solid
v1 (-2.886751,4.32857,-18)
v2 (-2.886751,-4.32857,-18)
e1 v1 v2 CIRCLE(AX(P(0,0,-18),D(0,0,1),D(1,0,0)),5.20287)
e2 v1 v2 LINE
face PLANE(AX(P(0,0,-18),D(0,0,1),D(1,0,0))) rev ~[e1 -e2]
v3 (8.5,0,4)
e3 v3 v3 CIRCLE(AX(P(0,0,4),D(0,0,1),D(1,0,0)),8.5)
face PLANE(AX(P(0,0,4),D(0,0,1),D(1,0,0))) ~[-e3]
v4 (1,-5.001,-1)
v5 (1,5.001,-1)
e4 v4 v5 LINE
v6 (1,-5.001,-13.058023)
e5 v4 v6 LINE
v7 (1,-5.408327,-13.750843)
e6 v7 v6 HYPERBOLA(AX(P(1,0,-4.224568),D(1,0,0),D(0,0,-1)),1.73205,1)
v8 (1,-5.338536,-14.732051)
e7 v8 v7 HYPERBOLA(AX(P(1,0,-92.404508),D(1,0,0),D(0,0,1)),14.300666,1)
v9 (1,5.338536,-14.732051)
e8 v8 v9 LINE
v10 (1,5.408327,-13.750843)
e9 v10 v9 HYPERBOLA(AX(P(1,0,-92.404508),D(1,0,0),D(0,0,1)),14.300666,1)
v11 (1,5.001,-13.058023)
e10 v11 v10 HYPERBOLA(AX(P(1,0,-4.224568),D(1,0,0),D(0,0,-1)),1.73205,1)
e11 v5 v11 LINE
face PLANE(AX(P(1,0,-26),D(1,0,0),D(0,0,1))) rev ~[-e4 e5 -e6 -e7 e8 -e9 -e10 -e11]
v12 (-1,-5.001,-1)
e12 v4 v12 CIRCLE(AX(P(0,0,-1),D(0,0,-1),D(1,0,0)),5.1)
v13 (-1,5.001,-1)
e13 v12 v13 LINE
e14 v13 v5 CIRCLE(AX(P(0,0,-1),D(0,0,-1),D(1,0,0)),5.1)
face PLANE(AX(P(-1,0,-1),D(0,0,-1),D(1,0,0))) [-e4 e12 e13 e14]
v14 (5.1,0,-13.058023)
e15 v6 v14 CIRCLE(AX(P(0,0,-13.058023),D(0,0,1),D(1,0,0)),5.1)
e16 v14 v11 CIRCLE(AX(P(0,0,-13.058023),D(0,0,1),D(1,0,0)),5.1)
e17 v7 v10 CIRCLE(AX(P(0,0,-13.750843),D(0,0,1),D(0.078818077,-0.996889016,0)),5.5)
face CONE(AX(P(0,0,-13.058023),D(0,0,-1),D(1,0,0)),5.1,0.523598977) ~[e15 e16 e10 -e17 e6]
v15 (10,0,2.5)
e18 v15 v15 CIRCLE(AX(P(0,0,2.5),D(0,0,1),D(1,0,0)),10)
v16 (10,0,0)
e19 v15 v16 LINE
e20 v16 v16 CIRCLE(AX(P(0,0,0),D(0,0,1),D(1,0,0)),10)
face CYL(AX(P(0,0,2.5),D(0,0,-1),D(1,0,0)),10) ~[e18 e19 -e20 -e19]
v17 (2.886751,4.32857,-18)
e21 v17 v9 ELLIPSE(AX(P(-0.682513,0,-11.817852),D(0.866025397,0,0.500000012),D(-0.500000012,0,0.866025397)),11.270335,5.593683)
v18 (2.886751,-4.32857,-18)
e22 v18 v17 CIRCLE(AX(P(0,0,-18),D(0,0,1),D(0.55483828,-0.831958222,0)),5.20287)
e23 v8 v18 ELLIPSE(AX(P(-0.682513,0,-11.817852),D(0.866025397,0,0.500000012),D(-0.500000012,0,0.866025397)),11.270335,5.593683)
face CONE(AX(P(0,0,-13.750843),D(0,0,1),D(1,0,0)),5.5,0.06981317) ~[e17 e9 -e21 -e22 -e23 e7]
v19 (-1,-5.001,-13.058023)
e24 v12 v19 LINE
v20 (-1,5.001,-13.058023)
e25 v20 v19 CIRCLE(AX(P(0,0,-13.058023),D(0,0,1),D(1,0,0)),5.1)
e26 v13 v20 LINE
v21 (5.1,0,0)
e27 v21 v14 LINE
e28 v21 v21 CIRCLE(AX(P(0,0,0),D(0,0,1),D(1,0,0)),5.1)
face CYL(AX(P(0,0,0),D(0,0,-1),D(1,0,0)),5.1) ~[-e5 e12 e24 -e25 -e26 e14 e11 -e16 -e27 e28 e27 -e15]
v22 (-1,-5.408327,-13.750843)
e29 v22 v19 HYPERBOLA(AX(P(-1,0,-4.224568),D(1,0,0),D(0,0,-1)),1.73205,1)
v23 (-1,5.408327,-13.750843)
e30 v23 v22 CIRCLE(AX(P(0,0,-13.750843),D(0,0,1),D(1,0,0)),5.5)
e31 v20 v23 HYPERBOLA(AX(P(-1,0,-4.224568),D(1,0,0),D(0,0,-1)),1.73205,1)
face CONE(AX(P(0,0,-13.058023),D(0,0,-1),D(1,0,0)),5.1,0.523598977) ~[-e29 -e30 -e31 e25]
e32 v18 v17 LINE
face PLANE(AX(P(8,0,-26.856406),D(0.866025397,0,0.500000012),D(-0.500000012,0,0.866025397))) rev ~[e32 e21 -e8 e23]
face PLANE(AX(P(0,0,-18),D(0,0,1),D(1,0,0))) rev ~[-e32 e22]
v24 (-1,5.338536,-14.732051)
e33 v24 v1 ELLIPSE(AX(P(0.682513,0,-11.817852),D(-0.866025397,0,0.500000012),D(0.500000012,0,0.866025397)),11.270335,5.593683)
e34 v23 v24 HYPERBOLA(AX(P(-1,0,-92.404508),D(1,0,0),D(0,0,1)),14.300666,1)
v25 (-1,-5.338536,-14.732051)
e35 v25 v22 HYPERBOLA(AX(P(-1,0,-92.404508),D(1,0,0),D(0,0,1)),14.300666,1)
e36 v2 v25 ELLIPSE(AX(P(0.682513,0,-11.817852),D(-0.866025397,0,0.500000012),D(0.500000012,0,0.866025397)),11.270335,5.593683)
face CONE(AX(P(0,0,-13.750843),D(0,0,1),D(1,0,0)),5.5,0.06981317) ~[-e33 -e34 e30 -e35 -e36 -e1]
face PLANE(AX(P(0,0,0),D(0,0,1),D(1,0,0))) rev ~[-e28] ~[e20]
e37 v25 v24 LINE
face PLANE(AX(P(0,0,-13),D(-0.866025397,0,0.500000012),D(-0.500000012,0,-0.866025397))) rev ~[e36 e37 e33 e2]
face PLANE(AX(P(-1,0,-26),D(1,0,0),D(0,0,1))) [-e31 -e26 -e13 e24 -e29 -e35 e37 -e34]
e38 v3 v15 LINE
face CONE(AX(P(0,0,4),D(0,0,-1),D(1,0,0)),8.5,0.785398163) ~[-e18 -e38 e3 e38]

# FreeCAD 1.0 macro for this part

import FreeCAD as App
import Part
import Sketcher

V = App.Vector
Q = App.Units.Quantity

doc = App.newDocument("Part")
body = doc.addObject("PartDesign::Body", "Body")

# Sketch on XZ plane
sketch1 = body.newObject("Sketcher::SketchObject", "Sketch")
sketch1.AttachmentSupport = (doc.getObject("XZ_Plane"), [""])
sketch1.MapMode = "FlatFace"
sketch1.addGeometry([
    Part.LineSegment(V(-1, -1, 0), V(-1, -26, 0)),
    Part.LineSegment(V(-1, -26, 0), V(1, -26, 0)),
    Part.LineSegment(V(1, -26, 0), V(1, -1, 0)),
    Part.LineSegment(V(1, -1, 0), V(-1, -1, 0)),
], False)
sketch1.addConstraint([
    Sketcher.Constraint("Coincident", 0, 2, 1, 1),
    Sketcher.Constraint("Coincident", 1, 2, 2, 1),
    Sketcher.Constraint("Coincident", 2, 2, 3, 1),
    Sketcher.Constraint("Coincident", 3, 2, 0, 1),
    Sketcher.Constraint("Vertical", 0),
    Sketcher.Constraint("Horizontal", 1),
    Sketcher.Constraint("Vertical", 2),
    Sketcher.Constraint("Horizontal", 3),
    Sketcher.Constraint("DistanceX", 1, 1, 1, 2, Q("2 mm")),
    Sketcher.Constraint("DistanceY", 0, 2, 0, 1, Q("25 mm")),
    Sketcher.Constraint("DistanceX", 0, 2, -1, 1, Q("1 mm")),
    Sketcher.Constraint("DistanceY", 0, 2, -1, 1, Q("26 mm")),
])
pad1 = body.newObject("PartDesign::Pad", "Pad")
pad1.Profile = sketch1
pad1.Length = 30
pad1.Midplane = True
body2 = doc.addObject("PartDesign::Body", "Body001")

# Sketch on XZ plane
sketch2 = body2.newObject("Sketcher::SketchObject", "Sketch001")
sketch2.AttachmentSupport = (doc.getObject("XZ_Plane001"), [""])
sketch2.MapMode = "FlatFace"
sketch2.addGeometry([
    Part.LineSegment(V(8, -27, 0), V(0, -13, 0)),
    Part.LineSegment(V(0, -13, 0), V(-8, -27, 0)),
    Part.LineSegment(V(-8, -27, 0), V(8, -27, 0)),
], False)
sketch2.addConstraint([
    Sketcher.Constraint("Coincident", 0, 2, 1, 1),
    Sketcher.Constraint("Coincident", 1, 2, 2, 1),
    Sketcher.Constraint("Coincident", 2, 2, 0, 1),
    Sketcher.Constraint("Horizontal", 2),
    Sketcher.Constraint("PointOnObject", 0, 2, -2),
    Sketcher.Constraint("Equal", 0, 1),
    Sketcher.Constraint("DistanceX", 2, 1, 2, 2, Q("16 mm")),
    Sketcher.Constraint("Angle", 0, Q("120.000001 deg")),
    Sketcher.Constraint("DistanceY", 0, 2, -1, 1, Q("13 mm")),
])
pad2 = body2.newObject("PartDesign::Pad", "Pad001")
pad2.Profile = sketch2
pad2.Length = 15
pad2.Midplane = True
body3 = doc.addObject("PartDesign::Body", "Body002")

# Sketch on XZ plane
sketch3 = body3.newObject("Sketcher::SketchObject", "Sketch002")
sketch3.AttachmentSupport = (doc.getObject("XZ_Plane002"), [""])
sketch3.MapMode = "FlatFace"
sketch3.addGeometry([
    Part.LineSegment(V(8.5, 4, 0), V(0, 4, 0)),  # 0
    Part.LineSegment(V(0, 4, 0), V(0, -18, 0)),  # 1
    Part.LineSegment(V(0, -18, 0), V(5.2, -18, 0)),  # 2
    Part.LineSegment(V(5.2, -18, 0), V(5.5, -13.8, 0)),  # 3
    Part.LineSegment(V(5.5, -13.8, 0), V(5.1, -13.1, 0)),  # 4
    Part.LineSegment(V(5.1, -13.1, 0), V(5.1, 0, 0)),  # 5
    Part.LineSegment(V(5.1, 0, 0), V(10, 0, 0)),  # 6
    Part.LineSegment(V(10, 0, 0), V(10, 2.5, 0)),  # 7
    Part.LineSegment(V(10, 2.5, 0), V(8.5, 4, 0)),  # 8
], False)
sketch3.addConstraint([
    Sketcher.Constraint("Coincident", 0, 2, 1, 1),
    Sketcher.Constraint("Coincident", 1, 2, 2, 1),
    Sketcher.Constraint("Coincident", 2, 2, 3, 1),
    Sketcher.Constraint("Coincident", 3, 2, 4, 1),
    Sketcher.Constraint("Coincident", 4, 2, 5, 1),
    Sketcher.Constraint("Coincident", 5, 2, 6, 1),
    Sketcher.Constraint("Coincident", 6, 2, 7, 1),
    Sketcher.Constraint("Coincident", 7, 2, 8, 1),
    Sketcher.Constraint("Coincident", 8, 2, 0, 1),
    Sketcher.Constraint("Horizontal", 0),
    Sketcher.Constraint("Vertical", 1),
    Sketcher.Constraint("Horizontal", 2),
    Sketcher.Constraint("Vertical", 5),
    Sketcher.Constraint("Horizontal", 6),
    Sketcher.Constraint("Vertical", 7),
    Sketcher.Constraint("PointOnObject", 0, 2, -2),
    Sketcher.Constraint("PointOnObject", 5, 2, -1),
    Sketcher.Constraint("DistanceY", 1, 2, 1, 1, Q("22 mm")),
    Sketcher.Constraint("Angle", 3, Q("86 deg")),
    Sketcher.Constraint("Angle", 4, Q("120.000012 deg")),
    Sketcher.Constraint("Angle", 8, Q("135 deg")),
    Sketcher.Constraint("DistanceX", 0, 2, 0, 1, Q("8.5 mm")),
    Sketcher.Constraint("DistanceX", 6, 1, 6, 2, Q("4.9 mm")),
    Sketcher.Constraint("DistanceY", 7, 1, 7, 2, Q("2.5 mm")),
    Sketcher.Constraint("DistanceY", -1, 1, 0, 2, Q("4 mm")),
    Sketcher.Constraint("Distance", 4, Q("0.8 mm")),
    Sketcher.Constraint("DistanceX", 2, 1, 2, 2, Q("5.20287 mm")),
])
revolution = body3.newObject("PartDesign::Revolution", "Revolution")
revolution.Profile = sketch3
revolution.ReferenceAxis = (sketch3, ["V_Axis"])
revolution.Angle = 360
doc.recompute()

boolean = body3.newObject("PartDesign::Boolean", "Boolean")
boolean.Type = "Cut"
boolean.addObjects([body2])
doc.recompute()

boolean2 = body3.newObject("PartDesign::Boolean", "Boolean001")
boolean2.Type = "Cut"
boolean2.addObjects([body])

doc.recompute()
